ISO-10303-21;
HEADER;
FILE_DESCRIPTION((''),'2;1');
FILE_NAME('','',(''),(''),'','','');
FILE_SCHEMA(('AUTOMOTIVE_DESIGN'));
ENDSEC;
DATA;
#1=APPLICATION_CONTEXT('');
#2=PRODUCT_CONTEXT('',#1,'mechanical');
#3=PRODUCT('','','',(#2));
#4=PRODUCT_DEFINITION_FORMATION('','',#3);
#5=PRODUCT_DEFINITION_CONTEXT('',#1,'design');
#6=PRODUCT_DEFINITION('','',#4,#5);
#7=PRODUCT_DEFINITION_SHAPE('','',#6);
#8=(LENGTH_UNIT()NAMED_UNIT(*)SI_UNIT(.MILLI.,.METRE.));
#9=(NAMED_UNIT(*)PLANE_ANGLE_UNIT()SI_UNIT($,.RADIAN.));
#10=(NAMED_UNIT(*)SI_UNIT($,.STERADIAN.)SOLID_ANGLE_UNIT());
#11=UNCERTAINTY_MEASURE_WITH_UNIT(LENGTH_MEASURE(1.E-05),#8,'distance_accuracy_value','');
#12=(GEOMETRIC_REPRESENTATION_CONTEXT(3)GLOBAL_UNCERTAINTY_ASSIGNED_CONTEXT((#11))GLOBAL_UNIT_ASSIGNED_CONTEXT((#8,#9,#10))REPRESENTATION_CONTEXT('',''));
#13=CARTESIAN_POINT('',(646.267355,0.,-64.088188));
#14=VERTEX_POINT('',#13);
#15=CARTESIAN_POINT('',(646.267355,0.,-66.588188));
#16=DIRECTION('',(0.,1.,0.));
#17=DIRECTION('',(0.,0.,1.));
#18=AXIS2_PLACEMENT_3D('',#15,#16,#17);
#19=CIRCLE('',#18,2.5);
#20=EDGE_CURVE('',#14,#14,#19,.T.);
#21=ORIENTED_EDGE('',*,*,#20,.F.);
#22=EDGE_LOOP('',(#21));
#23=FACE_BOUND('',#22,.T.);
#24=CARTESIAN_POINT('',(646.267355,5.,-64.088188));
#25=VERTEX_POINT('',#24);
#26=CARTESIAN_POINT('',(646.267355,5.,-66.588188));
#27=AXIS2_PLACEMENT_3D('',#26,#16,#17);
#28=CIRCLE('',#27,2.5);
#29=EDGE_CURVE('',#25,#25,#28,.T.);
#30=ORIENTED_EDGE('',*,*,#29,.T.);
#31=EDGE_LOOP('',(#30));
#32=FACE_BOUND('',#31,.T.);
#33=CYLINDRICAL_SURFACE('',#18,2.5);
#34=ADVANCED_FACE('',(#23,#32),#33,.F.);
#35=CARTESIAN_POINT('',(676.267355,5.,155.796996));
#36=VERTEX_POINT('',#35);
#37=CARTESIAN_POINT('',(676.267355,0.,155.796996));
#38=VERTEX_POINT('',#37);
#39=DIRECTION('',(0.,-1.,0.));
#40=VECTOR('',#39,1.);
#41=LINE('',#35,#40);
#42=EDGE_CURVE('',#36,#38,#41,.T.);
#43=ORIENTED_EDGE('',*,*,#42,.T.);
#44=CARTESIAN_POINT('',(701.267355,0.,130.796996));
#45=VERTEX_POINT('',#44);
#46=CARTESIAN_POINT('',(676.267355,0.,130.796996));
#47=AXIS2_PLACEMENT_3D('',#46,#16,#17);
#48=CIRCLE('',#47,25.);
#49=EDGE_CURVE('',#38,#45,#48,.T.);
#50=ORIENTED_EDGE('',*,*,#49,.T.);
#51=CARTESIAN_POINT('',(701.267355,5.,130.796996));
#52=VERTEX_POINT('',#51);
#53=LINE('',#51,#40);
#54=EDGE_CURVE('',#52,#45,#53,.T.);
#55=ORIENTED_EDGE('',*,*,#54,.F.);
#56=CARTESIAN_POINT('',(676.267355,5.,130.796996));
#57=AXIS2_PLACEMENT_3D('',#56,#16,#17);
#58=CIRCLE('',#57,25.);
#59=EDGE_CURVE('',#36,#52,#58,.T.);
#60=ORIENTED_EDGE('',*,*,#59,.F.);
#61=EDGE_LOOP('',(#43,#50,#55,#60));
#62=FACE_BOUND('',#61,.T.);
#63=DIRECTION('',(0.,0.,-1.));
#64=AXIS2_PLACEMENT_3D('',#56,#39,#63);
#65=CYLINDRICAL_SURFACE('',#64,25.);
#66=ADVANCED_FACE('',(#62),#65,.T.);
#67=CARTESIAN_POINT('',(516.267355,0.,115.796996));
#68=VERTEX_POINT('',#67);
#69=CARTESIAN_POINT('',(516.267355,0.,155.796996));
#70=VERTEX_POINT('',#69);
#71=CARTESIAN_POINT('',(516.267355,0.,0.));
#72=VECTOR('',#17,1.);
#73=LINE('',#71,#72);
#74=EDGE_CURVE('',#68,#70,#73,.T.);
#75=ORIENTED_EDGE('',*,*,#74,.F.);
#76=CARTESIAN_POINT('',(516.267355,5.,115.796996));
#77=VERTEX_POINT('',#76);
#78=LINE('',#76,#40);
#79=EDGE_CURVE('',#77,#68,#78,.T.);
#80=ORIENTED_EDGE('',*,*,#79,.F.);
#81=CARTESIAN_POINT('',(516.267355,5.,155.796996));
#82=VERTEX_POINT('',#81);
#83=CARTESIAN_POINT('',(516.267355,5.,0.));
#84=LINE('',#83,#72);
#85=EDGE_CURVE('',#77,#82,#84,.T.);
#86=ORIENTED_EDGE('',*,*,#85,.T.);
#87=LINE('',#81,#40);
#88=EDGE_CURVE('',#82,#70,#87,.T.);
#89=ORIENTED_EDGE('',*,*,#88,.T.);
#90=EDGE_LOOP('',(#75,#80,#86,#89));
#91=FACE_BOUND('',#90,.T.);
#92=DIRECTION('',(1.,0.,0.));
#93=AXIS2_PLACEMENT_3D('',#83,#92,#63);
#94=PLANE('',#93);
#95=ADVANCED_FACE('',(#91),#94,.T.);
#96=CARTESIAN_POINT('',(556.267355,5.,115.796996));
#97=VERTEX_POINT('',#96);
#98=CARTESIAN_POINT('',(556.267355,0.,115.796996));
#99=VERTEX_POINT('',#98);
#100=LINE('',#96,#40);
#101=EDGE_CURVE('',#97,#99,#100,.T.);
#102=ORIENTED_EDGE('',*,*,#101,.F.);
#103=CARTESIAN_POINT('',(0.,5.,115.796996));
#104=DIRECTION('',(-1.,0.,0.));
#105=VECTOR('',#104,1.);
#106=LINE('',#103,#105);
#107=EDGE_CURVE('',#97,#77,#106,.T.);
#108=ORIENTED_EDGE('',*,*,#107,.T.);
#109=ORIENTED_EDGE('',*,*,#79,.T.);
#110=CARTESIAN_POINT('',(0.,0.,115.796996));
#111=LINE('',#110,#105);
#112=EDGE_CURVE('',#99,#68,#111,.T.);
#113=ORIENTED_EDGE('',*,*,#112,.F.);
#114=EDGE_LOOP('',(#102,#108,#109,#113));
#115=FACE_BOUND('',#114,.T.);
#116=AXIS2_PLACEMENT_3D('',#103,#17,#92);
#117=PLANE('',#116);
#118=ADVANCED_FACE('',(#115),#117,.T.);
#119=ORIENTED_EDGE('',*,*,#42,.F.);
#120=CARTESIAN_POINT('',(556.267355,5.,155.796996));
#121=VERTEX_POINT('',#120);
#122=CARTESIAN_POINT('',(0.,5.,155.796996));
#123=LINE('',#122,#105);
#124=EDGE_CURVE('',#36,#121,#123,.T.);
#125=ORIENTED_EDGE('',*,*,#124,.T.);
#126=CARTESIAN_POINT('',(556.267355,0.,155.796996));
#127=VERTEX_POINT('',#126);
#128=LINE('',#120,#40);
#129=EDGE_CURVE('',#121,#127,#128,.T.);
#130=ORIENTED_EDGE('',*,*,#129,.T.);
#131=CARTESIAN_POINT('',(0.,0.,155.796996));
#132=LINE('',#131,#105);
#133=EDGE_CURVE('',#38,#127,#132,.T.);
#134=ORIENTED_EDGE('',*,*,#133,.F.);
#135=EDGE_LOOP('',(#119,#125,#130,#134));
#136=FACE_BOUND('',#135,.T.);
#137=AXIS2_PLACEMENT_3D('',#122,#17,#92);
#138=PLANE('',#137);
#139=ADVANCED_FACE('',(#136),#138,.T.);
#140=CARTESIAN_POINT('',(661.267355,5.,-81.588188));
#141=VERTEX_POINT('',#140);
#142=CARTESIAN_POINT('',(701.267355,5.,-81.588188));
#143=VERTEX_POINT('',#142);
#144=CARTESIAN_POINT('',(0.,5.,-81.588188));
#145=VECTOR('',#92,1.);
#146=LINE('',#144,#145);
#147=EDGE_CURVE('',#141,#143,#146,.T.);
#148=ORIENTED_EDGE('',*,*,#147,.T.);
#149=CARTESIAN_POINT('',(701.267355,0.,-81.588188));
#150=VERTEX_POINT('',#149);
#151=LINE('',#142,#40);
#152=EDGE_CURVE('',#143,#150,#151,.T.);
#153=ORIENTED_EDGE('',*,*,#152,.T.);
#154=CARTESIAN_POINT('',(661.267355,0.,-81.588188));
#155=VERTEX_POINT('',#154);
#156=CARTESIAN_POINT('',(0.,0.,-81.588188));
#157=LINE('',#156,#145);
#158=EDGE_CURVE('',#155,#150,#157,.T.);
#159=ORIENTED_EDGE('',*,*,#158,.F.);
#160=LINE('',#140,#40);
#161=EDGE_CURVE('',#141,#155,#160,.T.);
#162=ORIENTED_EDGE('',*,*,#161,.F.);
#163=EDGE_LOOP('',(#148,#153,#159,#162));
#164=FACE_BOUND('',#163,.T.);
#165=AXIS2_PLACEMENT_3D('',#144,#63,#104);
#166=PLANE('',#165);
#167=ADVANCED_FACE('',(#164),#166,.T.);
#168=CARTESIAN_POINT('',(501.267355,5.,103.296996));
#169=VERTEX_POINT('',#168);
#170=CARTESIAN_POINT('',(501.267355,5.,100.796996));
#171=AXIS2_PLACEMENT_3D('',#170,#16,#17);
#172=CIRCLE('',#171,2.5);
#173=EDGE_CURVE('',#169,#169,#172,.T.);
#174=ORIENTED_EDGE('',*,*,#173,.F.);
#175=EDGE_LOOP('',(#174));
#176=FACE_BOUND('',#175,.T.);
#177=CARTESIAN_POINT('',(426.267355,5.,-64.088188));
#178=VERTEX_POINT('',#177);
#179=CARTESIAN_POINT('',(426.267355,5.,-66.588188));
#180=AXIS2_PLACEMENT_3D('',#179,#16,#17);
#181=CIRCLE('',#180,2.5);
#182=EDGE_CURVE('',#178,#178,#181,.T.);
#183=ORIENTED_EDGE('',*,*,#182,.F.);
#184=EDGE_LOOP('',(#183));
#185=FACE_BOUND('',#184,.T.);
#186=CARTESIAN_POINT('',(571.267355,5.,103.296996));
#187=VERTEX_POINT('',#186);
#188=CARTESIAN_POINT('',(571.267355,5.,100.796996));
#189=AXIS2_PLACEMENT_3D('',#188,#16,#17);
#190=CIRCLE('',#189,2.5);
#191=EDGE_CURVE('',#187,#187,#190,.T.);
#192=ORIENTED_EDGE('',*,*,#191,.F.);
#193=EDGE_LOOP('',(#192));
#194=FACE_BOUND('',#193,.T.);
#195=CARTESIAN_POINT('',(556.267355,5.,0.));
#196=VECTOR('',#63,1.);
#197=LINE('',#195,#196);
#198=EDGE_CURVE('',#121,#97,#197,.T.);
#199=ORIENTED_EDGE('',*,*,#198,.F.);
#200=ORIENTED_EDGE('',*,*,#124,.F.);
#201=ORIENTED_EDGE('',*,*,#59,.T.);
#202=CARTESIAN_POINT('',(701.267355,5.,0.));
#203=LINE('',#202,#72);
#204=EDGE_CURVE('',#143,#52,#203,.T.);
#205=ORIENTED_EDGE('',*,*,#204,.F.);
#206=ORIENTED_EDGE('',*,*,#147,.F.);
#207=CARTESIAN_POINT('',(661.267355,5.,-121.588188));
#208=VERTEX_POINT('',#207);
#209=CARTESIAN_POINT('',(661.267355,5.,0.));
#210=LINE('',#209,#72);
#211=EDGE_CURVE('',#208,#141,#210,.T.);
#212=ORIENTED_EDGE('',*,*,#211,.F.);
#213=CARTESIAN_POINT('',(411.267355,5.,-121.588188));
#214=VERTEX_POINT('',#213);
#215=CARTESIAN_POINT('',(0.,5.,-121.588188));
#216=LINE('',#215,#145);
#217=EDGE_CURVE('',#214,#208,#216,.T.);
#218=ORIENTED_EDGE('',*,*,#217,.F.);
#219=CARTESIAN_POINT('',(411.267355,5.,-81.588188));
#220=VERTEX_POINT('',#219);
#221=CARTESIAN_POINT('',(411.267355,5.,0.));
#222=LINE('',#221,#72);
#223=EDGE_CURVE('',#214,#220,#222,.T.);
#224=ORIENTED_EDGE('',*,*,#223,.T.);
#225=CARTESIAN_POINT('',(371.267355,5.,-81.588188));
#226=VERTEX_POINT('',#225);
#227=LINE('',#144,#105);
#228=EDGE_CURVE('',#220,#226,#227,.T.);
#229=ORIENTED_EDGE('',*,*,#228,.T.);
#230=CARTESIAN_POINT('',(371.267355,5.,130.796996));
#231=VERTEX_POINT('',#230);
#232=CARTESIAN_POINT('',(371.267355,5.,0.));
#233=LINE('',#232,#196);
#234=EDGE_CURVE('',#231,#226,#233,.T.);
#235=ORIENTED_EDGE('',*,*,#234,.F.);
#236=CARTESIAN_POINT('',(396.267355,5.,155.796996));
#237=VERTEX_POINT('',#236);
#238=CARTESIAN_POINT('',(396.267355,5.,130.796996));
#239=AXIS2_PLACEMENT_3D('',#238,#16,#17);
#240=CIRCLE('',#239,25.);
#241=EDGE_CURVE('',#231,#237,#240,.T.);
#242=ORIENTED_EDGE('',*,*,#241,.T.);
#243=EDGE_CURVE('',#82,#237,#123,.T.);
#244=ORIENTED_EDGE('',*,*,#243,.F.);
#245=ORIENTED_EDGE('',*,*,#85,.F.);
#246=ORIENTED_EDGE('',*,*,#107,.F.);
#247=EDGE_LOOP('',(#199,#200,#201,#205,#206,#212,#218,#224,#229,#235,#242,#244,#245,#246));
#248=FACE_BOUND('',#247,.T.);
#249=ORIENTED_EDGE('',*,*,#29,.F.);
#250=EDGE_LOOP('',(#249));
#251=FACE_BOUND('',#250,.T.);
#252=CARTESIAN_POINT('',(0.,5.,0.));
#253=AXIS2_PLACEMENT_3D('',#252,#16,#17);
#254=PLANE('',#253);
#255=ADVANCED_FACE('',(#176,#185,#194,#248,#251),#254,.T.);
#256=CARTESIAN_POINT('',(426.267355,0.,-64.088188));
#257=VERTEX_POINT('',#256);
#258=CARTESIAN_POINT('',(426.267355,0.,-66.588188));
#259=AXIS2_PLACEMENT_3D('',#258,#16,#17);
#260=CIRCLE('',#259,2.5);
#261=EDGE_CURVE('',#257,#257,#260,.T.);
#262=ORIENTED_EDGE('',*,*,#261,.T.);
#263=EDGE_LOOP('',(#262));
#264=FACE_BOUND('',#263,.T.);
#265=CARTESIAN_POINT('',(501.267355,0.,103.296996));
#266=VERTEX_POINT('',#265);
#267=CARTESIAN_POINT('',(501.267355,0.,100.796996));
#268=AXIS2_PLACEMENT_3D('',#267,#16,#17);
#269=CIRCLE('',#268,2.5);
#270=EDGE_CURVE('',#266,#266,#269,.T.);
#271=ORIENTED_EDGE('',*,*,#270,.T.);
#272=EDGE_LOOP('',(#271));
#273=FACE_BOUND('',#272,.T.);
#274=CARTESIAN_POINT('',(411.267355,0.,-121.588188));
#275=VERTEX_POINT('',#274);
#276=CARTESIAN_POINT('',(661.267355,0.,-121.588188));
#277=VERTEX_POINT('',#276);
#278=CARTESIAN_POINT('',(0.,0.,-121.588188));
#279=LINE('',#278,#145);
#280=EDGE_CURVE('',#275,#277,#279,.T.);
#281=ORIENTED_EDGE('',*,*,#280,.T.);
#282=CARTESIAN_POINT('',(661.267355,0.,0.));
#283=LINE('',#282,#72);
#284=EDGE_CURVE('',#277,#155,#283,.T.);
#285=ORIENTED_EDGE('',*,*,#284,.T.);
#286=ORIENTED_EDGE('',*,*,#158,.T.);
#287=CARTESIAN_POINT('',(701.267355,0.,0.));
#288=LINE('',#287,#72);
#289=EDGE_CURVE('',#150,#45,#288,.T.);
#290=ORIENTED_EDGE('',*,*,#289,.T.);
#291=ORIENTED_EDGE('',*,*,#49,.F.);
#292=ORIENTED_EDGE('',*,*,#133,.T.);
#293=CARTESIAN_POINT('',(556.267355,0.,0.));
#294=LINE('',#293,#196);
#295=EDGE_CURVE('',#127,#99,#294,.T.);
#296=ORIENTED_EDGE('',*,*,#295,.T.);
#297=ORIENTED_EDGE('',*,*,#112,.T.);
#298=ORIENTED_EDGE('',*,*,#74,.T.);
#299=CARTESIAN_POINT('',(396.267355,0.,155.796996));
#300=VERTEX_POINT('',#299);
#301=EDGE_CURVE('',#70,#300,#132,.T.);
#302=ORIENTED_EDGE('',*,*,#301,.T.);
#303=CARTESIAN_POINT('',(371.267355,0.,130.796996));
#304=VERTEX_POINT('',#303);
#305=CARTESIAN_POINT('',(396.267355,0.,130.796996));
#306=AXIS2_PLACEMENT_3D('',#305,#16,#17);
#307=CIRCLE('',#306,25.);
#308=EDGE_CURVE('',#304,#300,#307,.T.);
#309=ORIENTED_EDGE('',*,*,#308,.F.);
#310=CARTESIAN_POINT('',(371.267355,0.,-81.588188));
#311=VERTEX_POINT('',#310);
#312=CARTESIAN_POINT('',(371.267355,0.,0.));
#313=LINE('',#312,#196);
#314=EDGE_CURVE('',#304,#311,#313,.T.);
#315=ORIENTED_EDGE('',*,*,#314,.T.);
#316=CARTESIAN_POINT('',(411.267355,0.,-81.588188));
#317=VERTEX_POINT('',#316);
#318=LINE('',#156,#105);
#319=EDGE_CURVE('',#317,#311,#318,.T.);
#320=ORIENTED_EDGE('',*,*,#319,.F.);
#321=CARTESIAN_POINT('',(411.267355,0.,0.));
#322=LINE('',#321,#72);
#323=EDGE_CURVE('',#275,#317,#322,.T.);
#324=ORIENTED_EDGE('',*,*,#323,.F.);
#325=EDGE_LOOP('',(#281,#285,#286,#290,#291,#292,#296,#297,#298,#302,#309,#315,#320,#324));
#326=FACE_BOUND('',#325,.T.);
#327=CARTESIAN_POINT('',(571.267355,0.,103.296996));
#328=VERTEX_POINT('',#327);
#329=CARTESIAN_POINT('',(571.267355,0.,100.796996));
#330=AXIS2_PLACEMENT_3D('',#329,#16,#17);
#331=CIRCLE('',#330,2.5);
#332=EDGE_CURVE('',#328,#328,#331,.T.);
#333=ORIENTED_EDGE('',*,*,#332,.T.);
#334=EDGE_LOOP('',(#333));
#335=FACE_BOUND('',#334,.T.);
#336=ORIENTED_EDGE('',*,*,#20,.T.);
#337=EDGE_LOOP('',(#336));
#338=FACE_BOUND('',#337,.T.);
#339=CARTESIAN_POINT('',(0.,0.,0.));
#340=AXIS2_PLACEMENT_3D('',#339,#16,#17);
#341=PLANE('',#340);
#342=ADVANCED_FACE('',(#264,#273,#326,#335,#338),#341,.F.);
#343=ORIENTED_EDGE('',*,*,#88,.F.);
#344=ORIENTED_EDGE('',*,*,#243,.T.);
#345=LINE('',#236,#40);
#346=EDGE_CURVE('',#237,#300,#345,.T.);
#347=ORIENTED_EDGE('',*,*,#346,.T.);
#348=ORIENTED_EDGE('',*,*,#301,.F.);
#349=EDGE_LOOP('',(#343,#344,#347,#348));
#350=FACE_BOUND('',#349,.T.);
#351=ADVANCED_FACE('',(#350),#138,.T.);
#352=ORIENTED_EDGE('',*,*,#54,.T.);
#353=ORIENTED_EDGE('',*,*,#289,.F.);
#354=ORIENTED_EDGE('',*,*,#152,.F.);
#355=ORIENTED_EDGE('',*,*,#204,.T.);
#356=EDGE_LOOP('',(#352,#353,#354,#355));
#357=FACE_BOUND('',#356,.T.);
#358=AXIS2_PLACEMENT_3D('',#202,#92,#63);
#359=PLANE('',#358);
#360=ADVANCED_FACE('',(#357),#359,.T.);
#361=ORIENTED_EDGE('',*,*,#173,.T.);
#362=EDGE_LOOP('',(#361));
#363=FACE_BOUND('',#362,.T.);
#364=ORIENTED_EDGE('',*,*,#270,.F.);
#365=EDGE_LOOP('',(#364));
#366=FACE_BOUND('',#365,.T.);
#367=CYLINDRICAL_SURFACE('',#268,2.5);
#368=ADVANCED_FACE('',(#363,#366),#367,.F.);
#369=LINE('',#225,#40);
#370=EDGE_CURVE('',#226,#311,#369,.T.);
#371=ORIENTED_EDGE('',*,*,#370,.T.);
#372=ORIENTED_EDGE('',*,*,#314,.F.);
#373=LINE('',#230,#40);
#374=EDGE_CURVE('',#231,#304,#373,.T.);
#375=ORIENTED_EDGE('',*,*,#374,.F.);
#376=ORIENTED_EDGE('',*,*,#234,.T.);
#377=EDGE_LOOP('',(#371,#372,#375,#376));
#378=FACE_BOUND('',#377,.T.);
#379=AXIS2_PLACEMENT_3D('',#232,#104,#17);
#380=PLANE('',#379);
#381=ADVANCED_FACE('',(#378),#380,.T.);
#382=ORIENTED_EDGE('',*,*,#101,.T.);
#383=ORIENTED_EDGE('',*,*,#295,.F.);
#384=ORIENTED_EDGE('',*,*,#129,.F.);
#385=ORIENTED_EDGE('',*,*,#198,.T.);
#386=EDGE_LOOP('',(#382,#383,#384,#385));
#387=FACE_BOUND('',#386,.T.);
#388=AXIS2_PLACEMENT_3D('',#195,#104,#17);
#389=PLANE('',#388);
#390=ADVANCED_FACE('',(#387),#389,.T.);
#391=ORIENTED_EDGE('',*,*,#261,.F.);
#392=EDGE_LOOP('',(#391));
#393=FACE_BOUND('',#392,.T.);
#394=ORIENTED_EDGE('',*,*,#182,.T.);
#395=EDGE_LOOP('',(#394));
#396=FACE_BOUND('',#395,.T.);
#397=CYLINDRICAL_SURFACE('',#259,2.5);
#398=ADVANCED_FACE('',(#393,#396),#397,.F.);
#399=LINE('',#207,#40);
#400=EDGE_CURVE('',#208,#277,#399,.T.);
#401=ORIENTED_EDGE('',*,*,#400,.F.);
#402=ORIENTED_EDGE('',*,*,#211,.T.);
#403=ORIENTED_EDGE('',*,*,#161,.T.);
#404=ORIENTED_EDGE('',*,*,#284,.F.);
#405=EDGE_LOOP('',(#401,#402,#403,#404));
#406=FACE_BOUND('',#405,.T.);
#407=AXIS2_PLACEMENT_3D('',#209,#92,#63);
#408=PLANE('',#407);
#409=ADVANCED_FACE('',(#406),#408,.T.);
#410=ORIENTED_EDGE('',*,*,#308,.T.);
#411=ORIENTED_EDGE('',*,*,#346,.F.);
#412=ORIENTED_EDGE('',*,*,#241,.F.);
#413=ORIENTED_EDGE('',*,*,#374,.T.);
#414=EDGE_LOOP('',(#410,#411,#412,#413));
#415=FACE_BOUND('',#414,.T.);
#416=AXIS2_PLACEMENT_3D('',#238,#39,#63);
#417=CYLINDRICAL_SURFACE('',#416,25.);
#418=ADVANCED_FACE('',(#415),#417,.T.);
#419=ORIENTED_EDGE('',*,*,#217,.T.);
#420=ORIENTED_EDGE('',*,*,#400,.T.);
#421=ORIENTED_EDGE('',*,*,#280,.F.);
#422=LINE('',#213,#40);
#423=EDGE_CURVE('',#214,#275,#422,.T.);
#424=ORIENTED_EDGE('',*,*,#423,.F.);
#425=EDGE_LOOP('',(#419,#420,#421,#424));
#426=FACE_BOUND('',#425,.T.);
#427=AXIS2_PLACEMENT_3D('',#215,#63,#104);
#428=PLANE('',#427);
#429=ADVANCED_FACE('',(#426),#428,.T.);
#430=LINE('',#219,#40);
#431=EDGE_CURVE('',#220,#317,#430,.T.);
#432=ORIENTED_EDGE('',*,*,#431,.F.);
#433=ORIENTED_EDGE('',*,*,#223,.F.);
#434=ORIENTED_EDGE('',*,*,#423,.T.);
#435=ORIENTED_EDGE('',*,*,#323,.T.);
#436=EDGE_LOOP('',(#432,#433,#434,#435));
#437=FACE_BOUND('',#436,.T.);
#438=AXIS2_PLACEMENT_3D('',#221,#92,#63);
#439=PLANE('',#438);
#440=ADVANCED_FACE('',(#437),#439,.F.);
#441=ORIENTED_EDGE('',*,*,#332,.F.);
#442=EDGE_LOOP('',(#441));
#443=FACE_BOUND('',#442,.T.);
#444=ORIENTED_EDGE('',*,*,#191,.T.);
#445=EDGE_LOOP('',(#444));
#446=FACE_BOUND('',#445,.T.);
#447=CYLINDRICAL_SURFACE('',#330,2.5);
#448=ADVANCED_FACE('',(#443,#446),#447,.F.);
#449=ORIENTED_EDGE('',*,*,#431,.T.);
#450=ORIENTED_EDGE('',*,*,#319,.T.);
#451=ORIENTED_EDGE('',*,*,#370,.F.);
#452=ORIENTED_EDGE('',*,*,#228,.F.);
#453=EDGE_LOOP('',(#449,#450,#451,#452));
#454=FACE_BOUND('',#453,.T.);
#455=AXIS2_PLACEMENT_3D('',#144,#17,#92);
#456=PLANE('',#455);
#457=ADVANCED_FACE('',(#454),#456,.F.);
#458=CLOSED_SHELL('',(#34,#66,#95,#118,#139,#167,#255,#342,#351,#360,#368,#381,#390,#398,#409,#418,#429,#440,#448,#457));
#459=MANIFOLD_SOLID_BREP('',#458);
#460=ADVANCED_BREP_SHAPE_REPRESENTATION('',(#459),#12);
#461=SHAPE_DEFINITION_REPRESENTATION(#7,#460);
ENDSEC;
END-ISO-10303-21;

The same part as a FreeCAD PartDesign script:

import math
import FreeCAD as App
import Part
import Sketcher

doc = App.newDocument("Part")
body = doc.addObject("PartDesign::Body", "Body")

sketch1 = body.newObject("Sketcher::SketchObject", "Sketch")
sketch1.AttachmentSupport = (doc.getObject("XZ_Plane"), [""])
sketch1.MapMode = "FlatFace"
sketch1.addGeometry([
    Part.LineSegment(App.Vector(396, 156, 0), App.Vector(516, 156, 0)),
    Part.LineSegment(App.Vector(516, 156, 0), App.Vector(516, 116, 0)),
    Part.LineSegment(App.Vector(516, 116, 0), App.Vector(556, 116, 0)),
    Part.LineSegment(App.Vector(556, 116, 0), App.Vector(556, 156, 0)),
    Part.LineSegment(App.Vector(556, 156, 0), App.Vector(676, 156, 0)),
    Part.ArcOfCircle(Part.Circle(App.Vector(676, 131, 0), App.Vector(0, 0, 1), 25), math.radians(0), math.radians(90)),
    Part.LineSegment(App.Vector(701, 131, 0), App.Vector(701, -82, 0)),
    Part.LineSegment(App.Vector(701, -82, 0), App.Vector(661, -82, 0)),
    Part.LineSegment(App.Vector(661, -82, 0), App.Vector(661, -122, 0)),
    Part.LineSegment(App.Vector(661, -122, 0), App.Vector(411, -122, 0)),
    Part.LineSegment(App.Vector(411, -122, 0), App.Vector(411, -82, 0)),
    Part.LineSegment(App.Vector(411, -82, 0), App.Vector(371, -82, 0)),
    Part.LineSegment(App.Vector(371, -82, 0), App.Vector(371, 131, 0)),
    Part.ArcOfCircle(Part.Circle(App.Vector(396, 131, 0), App.Vector(0, 0, 1), 25), math.radians(90), math.radians(180)),
], False)
sketch1.addConstraint([
    Sketcher.Constraint("Coincident", 0, 2, 1, 1),
    Sketcher.Constraint("Coincident", 1, 2, 2, 1),
    Sketcher.Constraint("Coincident", 2, 2, 3, 1),
    Sketcher.Constraint("Coincident", 3, 2, 4, 1),
    Sketcher.Constraint("Tangent", 4, 2, 5, 2),
    Sketcher.Constraint("Tangent", 5, 1, 6, 1),
    Sketcher.Constraint("Coincident", 6, 2, 7, 1),
    Sketcher.Constraint("Coincident", 7, 2, 8, 1),
    Sketcher.Constraint("Coincident", 8, 2, 9, 1),
    Sketcher.Constraint("Coincident", 9, 2, 10, 1),
    Sketcher.Constraint("Coincident", 10, 2, 11, 1),
    Sketcher.Constraint("Coincident", 11, 2, 12, 1),
    Sketcher.Constraint("Tangent", 12, 2, 13, 2),
    Sketcher.Constraint("Tangent", 13, 1, 0, 1),
    Sketcher.Constraint("Horizontal", 0),
    Sketcher.Constraint("Vertical", 1),
    Sketcher.Constraint("Horizontal", 2),
    Sketcher.Constraint("Vertical", 3),
    Sketcher.Constraint("Horizontal", 4),
    Sketcher.Constraint("Vertical", 6),
    Sketcher.Constraint("Horizontal", 7),
    Sketcher.Constraint("Vertical", 8),
    Sketcher.Constraint("Horizontal", 9),
    Sketcher.Constraint("Vertical", 10),
    Sketcher.Constraint("Horizontal", 11),
    Sketcher.Constraint("Vertical", 12),
    Sketcher.Constraint("Equal", 5, 13),
    Sketcher.Constraint("Horizontal", 5, 3, 13, 3),
    Sketcher.Constraint("Horizontal", 7, 2, 10, 2),
    Sketcher.Constraint("Equal", 0, 4),
    Sketcher.Constraint("Equal", 2, 7),
    Sketcher.Constraint("Equal", 7, 11),
    Sketcher.Constraint("Equal", 11, 1),
    Sketcher.Constraint("Equal", 3, 8),
    Sketcher.Constraint("Radius", 5, 25.0),
    Sketcher.Constraint("DistanceX", 0, 1, 0, 2, 120.0),
    Sketcher.Constraint("DistanceX", 2, 1, 2, 2, 40.0),
    Sketcher.Constraint("DistanceY", 6, 2, 6, 1, 212.385184),
    Sketcher.Constraint("DistanceX", -1, 1, 5, 3, 676.267355),
    Sketcher.Constraint("DistanceY", -1, 1, 5, 3, 130.796996),
])
pad1 = body.newObject("PartDesign::Pad", "Pad")
pad1.Profile = sketch1
pad1.Length = 5
pad1.Reversed = True

sketch2 = body.newObject("Sketcher::SketchObject", "Sketch001")
sketch2.AttachmentSupport = (doc.getObject("XZ_Plane"), [""])
sketch2.MapMode = "FlatFace"
sketch2.AttachmentOffset = App.Placement(App.Vector(0, 0, -5), App.Rotation())
sketch2.addGeometry([
    Part.Circle(App.Vector(571.3, 100.8, 0), App.Vector(0, 0, 1), 2.5),
    Part.Circle(App.Vector(501.3, 100.8, 0), App.Vector(0, 0, 1), 2.5),
    Part.Circle(App.Vector(646.3, -66.6, 0), App.Vector(0, 0, 1), 2.5),
    Part.Circle(App.Vector(426.3, -66.6, 0), App.Vector(0, 0, 1), 2.5),
], False)
sketch2.addConstraint([
    Sketcher.Constraint("Equal", 0, 1),
    Sketcher.Constraint("Equal", 1, 2),
    Sketcher.Constraint("Equal", 2, 3),
    Sketcher.Constraint("Horizontal", 0, 3, 1, 3),
    Sketcher.Constraint("Horizontal", 2, 3, 3, 3),
    Sketcher.Constraint("Diameter", 0, 5.0),
    Sketcher.Constraint("DistanceX", 1, 3, 0, 3, 70.0),
    Sketcher.Constraint("DistanceX", 0, 3, 2, 3, 75.0),
    Sketcher.Constraint("DistanceX", 3, 3, 1, 3, 75.0),
    Sketcher.Constraint("DistanceX", -1, 1, 0, 3, 571.267355),
    Sketcher.Constraint("DistanceY", -1, 1, 0, 3, 100.796996),
    Sketcher.Constraint("DistanceY", 2, 3, -1, 1, 66.588188),
])
pocket1 = body.newObject("PartDesign::Pocket", "Pocket")
pocket1.Profile = sketch2
pocket1.Length = 5
pocket1.Reversed = True

doc.recompute()
